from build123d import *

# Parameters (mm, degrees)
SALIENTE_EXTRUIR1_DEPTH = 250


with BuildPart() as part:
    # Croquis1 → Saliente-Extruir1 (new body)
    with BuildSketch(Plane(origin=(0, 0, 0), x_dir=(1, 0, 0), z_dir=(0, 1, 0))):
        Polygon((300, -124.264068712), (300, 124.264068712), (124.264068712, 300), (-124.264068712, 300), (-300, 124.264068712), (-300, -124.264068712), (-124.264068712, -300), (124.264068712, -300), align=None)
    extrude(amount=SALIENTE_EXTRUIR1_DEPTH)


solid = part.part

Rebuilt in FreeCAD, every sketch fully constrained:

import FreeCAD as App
import Part
import Sketcher
from FreeCAD import Vector
Q = App.Units.Quantity

doc = App.newDocument("Part")
body = doc.addObject("PartDesign::Body", "Body")

# Sketch on XZ plane
sketch1 = body.newObject("Sketcher::SketchObject", "Sketch")
sketch1.AttachmentSupport = (doc.getObject("XZ_Plane"), [""])
sketch1.MapMode = "FlatFace"
sketch1.addGeometry([
    Part.LineSegment(Vector(300, 124, 0), Vector(300, -124, 0)),  # 0
    Part.LineSegment(Vector(300, -124, 0), Vector(124, -300, 0)),  # 1
    Part.LineSegment(Vector(124, -300, 0), Vector(-124, -300, 0)),  # 2
    Part.LineSegment(Vector(-124, -300, 0), Vector(-300, -124, 0)),  # 3
    Part.LineSegment(Vector(-300, -124, 0), Vector(-300, 124, 0)),  # 4
    Part.LineSegment(Vector(-300, 124, 0), Vector(-124, 300, 0)),  # 5
    Part.LineSegment(Vector(-124, 300, 0), Vector(124, 300, 0)),  # 6
    Part.LineSegment(Vector(124, 300, 0), Vector(300, 124, 0)),  # 7
], False)
sketch1.addConstraint([
    Sketcher.Constraint("Coincident", 0, 2, 1, 1),
    Sketcher.Constraint("Coincident", 1, 2, 2, 1),
    Sketcher.Constraint("Coincident", 2, 2, 3, 1),
    Sketcher.Constraint("Coincident", 3, 2, 4, 1),
    Sketcher.Constraint("Coincident", 4, 2, 5, 1),
    Sketcher.Constraint("Coincident", 5, 2, 6, 1),
    Sketcher.Constraint("Coincident", 6, 2, 7, 1),
    Sketcher.Constraint("Coincident", 7, 2, 0, 1),
    Sketcher.Constraint("Vertical", 0),
    Sketcher.Constraint("Horizontal", 2),
    Sketcher.Constraint("Vertical", 4),
    Sketcher.Constraint("Horizontal", 6),
    Sketcher.Constraint("Symmetric", 0, 2, 4, 2, -1, 1),
    Sketcher.Constraint("Symmetric", 1, 2, 5, 2, -1, 1),
    Sketcher.Constraint("Perpendicular", 1, 3),
    Sketcher.Constraint("Perpendicular", 5, 7),
    Sketcher.Constraint("Horizontal", 0, 2, 3, 2),
    Sketcher.Constraint("Horizontal", 4, 2, 7, 2),
    Sketcher.Constraint("Vertical", 2, 2, 5, 2),
    Sketcher.Constraint("Equal", 6, 0),
    Sketcher.Constraint("DistanceX", -1, 1, 0, 2, Q("300 mm")),
    Sketcher.Constraint("DistanceX", 2, 2, 2, 1, Q("248.528137 mm")),
])
pad1 = body.newObject("PartDesign::Pad", "Pad")
pad1.Profile = sketch1
pad1.Length = 250
pad1.Reversed = True

doc.recompute()
